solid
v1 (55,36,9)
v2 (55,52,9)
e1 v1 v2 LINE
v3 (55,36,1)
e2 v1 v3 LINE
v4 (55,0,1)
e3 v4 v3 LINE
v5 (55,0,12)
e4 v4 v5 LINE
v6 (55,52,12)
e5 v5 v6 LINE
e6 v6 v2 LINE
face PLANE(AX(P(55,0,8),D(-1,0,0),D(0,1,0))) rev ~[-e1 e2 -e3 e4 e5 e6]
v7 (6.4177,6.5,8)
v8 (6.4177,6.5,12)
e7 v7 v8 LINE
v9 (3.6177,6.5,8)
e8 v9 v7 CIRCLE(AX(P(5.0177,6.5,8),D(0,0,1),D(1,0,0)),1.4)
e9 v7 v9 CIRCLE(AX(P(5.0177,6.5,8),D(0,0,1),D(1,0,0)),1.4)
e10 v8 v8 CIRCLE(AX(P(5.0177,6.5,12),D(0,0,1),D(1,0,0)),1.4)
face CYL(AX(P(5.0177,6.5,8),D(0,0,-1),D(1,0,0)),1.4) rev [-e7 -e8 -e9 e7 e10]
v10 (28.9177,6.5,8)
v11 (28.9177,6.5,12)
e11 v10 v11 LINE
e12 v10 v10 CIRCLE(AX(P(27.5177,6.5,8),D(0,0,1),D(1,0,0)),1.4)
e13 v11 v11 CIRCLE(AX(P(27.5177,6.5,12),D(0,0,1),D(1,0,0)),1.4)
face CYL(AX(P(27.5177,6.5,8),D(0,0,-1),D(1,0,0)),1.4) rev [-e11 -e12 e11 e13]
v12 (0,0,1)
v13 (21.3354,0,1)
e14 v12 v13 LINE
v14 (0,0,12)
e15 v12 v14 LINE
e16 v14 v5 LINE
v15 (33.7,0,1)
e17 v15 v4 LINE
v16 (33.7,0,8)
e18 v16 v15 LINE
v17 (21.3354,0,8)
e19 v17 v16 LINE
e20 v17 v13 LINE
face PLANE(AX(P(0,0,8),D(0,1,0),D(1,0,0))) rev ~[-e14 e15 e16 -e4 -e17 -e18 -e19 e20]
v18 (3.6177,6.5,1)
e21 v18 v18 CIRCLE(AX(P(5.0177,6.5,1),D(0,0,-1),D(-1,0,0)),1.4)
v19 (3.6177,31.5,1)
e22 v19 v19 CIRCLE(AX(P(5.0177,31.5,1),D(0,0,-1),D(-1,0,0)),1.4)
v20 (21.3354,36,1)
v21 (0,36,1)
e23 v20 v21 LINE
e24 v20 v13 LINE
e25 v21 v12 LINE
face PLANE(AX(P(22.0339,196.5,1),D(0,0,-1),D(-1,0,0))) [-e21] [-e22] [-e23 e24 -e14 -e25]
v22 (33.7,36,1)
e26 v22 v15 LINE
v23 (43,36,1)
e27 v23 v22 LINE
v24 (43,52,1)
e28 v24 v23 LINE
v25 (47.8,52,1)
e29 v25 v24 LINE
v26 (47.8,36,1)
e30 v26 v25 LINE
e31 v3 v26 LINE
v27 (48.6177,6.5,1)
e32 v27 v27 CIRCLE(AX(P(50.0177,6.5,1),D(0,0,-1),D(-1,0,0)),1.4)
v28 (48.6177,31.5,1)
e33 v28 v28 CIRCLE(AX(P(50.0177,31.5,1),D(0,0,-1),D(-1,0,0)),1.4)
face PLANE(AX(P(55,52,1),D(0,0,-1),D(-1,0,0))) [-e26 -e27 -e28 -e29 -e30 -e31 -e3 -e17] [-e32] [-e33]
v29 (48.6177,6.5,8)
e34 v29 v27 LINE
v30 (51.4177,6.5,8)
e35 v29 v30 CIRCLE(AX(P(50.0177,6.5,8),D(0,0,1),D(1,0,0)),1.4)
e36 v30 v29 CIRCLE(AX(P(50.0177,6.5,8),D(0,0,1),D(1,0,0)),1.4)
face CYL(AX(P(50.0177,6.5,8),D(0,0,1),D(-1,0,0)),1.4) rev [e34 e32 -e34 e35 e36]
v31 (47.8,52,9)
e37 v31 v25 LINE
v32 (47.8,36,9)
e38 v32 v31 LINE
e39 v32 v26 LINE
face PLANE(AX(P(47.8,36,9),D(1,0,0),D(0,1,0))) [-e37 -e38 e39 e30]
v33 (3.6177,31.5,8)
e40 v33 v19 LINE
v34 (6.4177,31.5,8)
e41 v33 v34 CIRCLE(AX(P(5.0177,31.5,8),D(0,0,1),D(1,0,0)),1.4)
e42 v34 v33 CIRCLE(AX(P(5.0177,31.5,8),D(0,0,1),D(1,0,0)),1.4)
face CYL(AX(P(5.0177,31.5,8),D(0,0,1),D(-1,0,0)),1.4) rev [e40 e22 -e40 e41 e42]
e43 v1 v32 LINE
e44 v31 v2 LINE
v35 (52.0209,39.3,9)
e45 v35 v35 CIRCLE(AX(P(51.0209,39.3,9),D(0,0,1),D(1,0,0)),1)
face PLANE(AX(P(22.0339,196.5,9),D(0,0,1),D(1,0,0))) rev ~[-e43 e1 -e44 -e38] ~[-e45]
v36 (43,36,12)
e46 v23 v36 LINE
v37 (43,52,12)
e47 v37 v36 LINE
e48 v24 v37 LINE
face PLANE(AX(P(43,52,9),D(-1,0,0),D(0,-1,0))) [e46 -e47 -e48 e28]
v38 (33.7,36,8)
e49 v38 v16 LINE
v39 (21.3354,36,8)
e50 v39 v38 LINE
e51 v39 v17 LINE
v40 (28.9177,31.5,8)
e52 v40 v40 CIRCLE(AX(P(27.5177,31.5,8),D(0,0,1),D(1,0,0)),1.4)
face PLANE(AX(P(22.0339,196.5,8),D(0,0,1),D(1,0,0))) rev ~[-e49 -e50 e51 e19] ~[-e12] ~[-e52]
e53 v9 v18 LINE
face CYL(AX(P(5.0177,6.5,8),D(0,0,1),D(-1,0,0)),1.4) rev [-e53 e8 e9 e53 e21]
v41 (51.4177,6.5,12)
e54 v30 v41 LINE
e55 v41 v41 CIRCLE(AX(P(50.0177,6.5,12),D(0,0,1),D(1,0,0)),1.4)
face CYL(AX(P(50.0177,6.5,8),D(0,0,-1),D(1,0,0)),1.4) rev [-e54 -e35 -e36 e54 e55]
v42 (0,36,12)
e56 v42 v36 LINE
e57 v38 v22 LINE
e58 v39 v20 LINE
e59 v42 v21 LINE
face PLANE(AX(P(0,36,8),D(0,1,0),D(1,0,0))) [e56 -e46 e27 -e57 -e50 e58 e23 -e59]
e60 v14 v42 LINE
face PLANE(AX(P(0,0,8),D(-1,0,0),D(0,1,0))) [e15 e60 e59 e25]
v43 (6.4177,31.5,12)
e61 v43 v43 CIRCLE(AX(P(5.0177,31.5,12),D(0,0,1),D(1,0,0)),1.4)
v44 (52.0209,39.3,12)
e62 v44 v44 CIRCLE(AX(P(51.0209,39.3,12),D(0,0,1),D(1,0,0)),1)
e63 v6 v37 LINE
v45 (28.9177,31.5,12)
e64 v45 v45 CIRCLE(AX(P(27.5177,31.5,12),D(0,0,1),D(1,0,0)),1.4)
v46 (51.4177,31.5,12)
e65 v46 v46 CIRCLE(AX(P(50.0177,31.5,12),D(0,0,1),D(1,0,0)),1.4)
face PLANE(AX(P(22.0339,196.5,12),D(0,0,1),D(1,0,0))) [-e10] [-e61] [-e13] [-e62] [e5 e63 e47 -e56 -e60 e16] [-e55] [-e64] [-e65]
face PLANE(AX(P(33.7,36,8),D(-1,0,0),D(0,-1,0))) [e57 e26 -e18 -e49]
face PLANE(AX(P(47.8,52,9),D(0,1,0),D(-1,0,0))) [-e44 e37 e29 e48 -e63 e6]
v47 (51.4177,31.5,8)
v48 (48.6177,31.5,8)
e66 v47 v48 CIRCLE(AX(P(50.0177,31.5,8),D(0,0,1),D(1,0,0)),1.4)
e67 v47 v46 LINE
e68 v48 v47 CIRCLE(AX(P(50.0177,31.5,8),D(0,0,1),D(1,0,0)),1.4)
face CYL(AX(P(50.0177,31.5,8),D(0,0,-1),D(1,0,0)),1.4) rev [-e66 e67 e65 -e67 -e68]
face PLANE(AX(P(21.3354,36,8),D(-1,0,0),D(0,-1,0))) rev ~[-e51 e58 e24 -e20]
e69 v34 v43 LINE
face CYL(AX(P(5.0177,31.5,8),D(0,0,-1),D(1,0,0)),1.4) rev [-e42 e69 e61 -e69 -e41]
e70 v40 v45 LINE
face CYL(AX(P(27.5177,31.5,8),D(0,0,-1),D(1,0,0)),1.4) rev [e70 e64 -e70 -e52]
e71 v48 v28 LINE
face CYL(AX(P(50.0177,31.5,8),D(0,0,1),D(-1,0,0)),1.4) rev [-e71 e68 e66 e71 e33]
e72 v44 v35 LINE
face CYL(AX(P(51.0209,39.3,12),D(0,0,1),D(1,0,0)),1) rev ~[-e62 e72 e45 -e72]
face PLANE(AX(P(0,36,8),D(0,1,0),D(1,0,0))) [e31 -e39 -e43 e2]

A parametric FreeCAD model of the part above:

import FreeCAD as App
import Part
import Sketcher

V = App.Vector


def add_polygon(sketch, points):
    """Adds a closed chain of lines whose ends are joined by coincident constraints."""
    first, n = sketch.GeometryCount, len(points)
    for a, b in zip(points, points[1:] + points[:1]):
        sketch.addGeometry(Part.LineSegment(App.Vector(*a, 0), App.Vector(*b, 0)), False)
    for i in range(n):
        sketch.addConstraint(Sketcher.Constraint("Coincident", first + i, 2, first + (i + 1) % n, 1))

doc = App.newDocument("Part")
body = doc.addObject("PartDesign::Body", "Body")

sketch1 = doc.addObject("Sketcher::SketchObject", "Sketch")
body.addObject(sketch1)
sketch1.AttachmentSupport = (doc.XY_Plane, [""])
sketch1.MapMode = "FlatFace"
sketch1.AttachmentOffset = App.Placement(V(0, 0, 8), App.Rotation())
add_polygon(sketch1, [(0, 0), (55, 0), (55, 36), (0, 36)])
sketch1.addGeometry(Part.Circle(V(5, 6.5, 0), V(0, 0, 1), 1.4), False)
sketch1.addGeometry(Part.Circle(V(27.5, 6.5, 0), V(0, 0, 1), 1.4), False)
sketch1.addGeometry(Part.Circle(V(50, 6.5, 0), V(0, 0, 1), 1.4), False)
sketch1.addGeometry(Part.Circle(V(50, 31.5, 0), V(0, 0, 1), 1.4), False)
sketch1.addGeometry(Part.Circle(V(5, 31.5, 0), V(0, 0, 1), 1.4), False)
sketch1.addGeometry(Part.Circle(V(27.5, 31.5, 0), V(0, 0, 1), 1.4), False)
sketch1.addConstraint(Sketcher.Constraint("Horizontal", 0))
sketch1.addConstraint(Sketcher.Constraint("Vertical", 1))
sketch1.addConstraint(Sketcher.Constraint("Horizontal", 2))
sketch1.addConstraint(Sketcher.Constraint("Vertical", 3))
sketch1.addConstraint(Sketcher.Constraint("Coincident", 3, 2, -1, 1))
sketch1.addConstraint(Sketcher.Constraint("Equal", 4, 5))
sketch1.addConstraint(Sketcher.Constraint("Equal", 5, 6))
sketch1.addConstraint(Sketcher.Constraint("Equal", 6, 7))
sketch1.addConstraint(Sketcher.Constraint("Equal", 7, 8))
sketch1.addConstraint(Sketcher.Constraint("Equal", 8, 9))
sketch1.addConstraint(Sketcher.Constraint("Horizontal", 4, 3, 5, 3))
sketch1.addConstraint(Sketcher.Constraint("Horizontal", 5, 3, 6, 3))
sketch1.addConstraint(Sketcher.Constraint("Horizontal", 7, 3, 8, 3))
sketch1.addConstraint(Sketcher.Constraint("Horizontal", 8, 3, 9, 3))
sketch1.addConstraint(Sketcher.Constraint("Vertical", 6, 3, 7, 3))
sketch1.addConstraint(Sketcher.Constraint("Vertical", 4, 3, 8, 3))
sketch1.addConstraint(Sketcher.Constraint("Vertical", 5, 3, 9, 3))
sketch1.addConstraint(Sketcher.Constraint("Diameter", 4, 2.8))
sketch1.addConstraint(Sketcher.Constraint("DistanceX", 0, 1, 0, 2, 55.0))
sketch1.addConstraint(Sketcher.Constraint("DistanceY", 1, 1, 1, 2, 36.0))
sketch1.addConstraint(Sketcher.Constraint("DistanceX", 4, 3, 6, 3, 45.0))
sketch1.addConstraint(Sketcher.Constraint("DistanceY", 6, 3, 7, 3, 25.0))
sketch1.addConstraint(Sketcher.Constraint("DistanceY", -1, 1, 4, 3, 6.5))
sketch1.addConstraint(Sketcher.Constraint("DistanceX", 4, 3, 5, 3, 22.5))
sketch1.addConstraint(Sketcher.Constraint("DistanceX", -1, 1, 4, 3, 5.0177))
pad1 = doc.addObject("PartDesign::Pad", "Pad")
body.addObject(pad1)
pad1.Profile = sketch1
pad1.Length = 4

sketch2 = doc.addObject("Sketcher::SketchObject", "Sketch001")
body.addObject(sketch2)
sketch2.AttachmentSupport = (doc.XY_Plane, [""])
sketch2.MapMode = "FlatFace"
sketch2.AttachmentOffset = App.Placement(V(0, 0, 8), App.Rotation())
add_polygon(sketch2, [(55, 36), (55, 0), (33.7, 0), (33.7, 36)])
sketch2.addGeometry(Part.Circle(V(50, 6.5, 0), V(0, 0, 1), 1.4), False)
sketch2.addGeometry(Part.Circle(V(50, 31.5, 0), V(0, 0, 1), 1.4), False)
add_polygon(sketch2, [(21.3, 36), (21.3, 0), (0, 0), (0, 36)])
sketch2.addGeometry(Part.Circle(V(5, 6.5, 0), V(0, 0, 1), 1.4), False)
sketch2.addGeometry(Part.Circle(V(5, 31.5, 0), V(0, 0, 1), 1.4), False)
sketch2.addConstraint(Sketcher.Constraint("Vertical", 0))
sketch2.addConstraint(Sketcher.Constraint("Horizontal", 1))
sketch2.addConstraint(Sketcher.Constraint("Vertical", 2))
sketch2.addConstraint(Sketcher.Constraint("Horizontal", 3))
sketch2.addConstraint(Sketcher.Constraint("Vertical", 6))
sketch2.addConstraint(Sketcher.Constraint("Horizontal", 7))
sketch2.addConstraint(Sketcher.Constraint("Vertical", 8))
sketch2.addConstraint(Sketcher.Constraint("Horizontal", 9))
sketch2.addConstraint(Sketcher.Constraint("Coincident", 7, 2, -1, 1))
sketch2.addConstraint(Sketcher.Constraint("Equal", 4, 5))
sketch2.addConstraint(Sketcher.Constraint("Equal", 5, 10))
sketch2.addConstraint(Sketcher.Constraint("Equal", 10, 11))
sketch2.addConstraint(Sketcher.Constraint("PointOnObject", 0, 2, -1))
sketch2.addConstraint(Sketcher.Constraint("Horizontal", 4, 3, 10, 3))
sketch2.addConstraint(Sketcher.Constraint("Horizontal", 5, 3, 11, 3))
sketch2.addConstraint(Sketcher.Constraint("Horizontal", 3, 2, 8, 2))
sketch2.addConstraint(Sketcher.Constraint("Vertical", 4, 3, 5, 3))
sketch2.addConstraint(Sketcher.Constraint("Vertical", 10, 3, 11, 3))
sketch2.addConstraint(Sketcher.Constraint("Diameter", 4, 2.8))
sketch2.addConstraint(Sketcher.Constraint("DistanceY", 0, 2, 0, 1, 36.0))
sketch2.addConstraint(Sketcher.Constraint("DistanceX", 1, 2, 1, 1, 21.3))
sketch2.addConstraint(Sketcher.Constraint("DistanceX", -1, 1, 0, 2, 55.0))
sketch2.addConstraint(Sketcher.Constraint("DistanceY", 4, 3, 5, 3, 25.0))
sketch2.addConstraint(Sketcher.Constraint("DistanceX", 10, 3, 4, 3, 45.0))
sketch2.addConstraint(Sketcher.Constraint("DistanceY", -1, 1, 4, 3, 6.5))
sketch2.addConstraint(Sketcher.Constraint("DistanceX", 7, 2, 7, 1, 21.3354))
sketch2.addConstraint(Sketcher.Constraint("DistanceX", -1, 1, 4, 3, 50.0177))
pad2 = doc.addObject("PartDesign::Pad", "Pad001")
body.addObject(pad2)
pad2.Profile = sketch2
pad2.Length = 7
pad2.Reversed = True

sketch3 = doc.addObject("Sketcher::SketchObject", "Sketch002")
body.addObject(sketch3)
sketch3.AttachmentSupport = (doc.XY_Plane, [""])
sketch3.MapMode = "FlatFace"
sketch3.AttachmentOffset = App.Placement(V(0, 0, 12), App.Rotation())
add_polygon(sketch3, [(43, 36), (55, 36), (55, 52), (43, 52)])
sketch3.addGeometry(Part.Circle(V(51, 39.3, 0), V(0, 0, 1), 1), False)
sketch3.addConstraint(Sketcher.Constraint("Horizontal", 0))
sketch3.addConstraint(Sketcher.Constraint("Vertical", 1))
sketch3.addConstraint(Sketcher.Constraint("Horizontal", 2))
sketch3.addConstraint(Sketcher.Constraint("Vertical", 3))
sketch3.addConstraint(Sketcher.Constraint("DistanceX", 0, 1, 0, 2, 12.0))
sketch3.addConstraint(Sketcher.Constraint("Diameter", 4, 2.0))
sketch3.addConstraint(Sketcher.Constraint("DistanceY", 1, 1, 1, 2, 16.0))
sketch3.addConstraint(Sketcher.Constraint("DistanceX", -1, 1, 0, 2, 55.0))
sketch3.addConstraint(Sketcher.Constraint("DistanceY", -1, 1, 0, 2, 36.0))
sketch3.addConstraint(Sketcher.Constraint("DistanceY", -1, 1, 4, 3, 39.3))
sketch3.addConstraint(Sketcher.Constraint("DistanceX", -1, 1, 4, 3, 51.021))
pad3 = doc.addObject("PartDesign::Pad", "Pad002")
body.addObject(pad3)
pad3.Profile = sketch3
pad3.Length = 3
pad3.Reversed = True

sketch4 = doc.addObject("Sketcher::SketchObject", "Sketch003")
body.addObject(sketch4)
sketch4.AttachmentSupport = (doc.XY_Plane, [""])
sketch4.MapMode = "FlatFace"
sketch4.AttachmentOffset = App.Placement(V(0, 0, 9), App.Rotation())
add_polygon(sketch4, [(47.8, 52), (47.8, 36), (43, 36), (43, 52)])
sketch4.addConstraint(Sketcher.Constraint("Vertical", 0))
sketch4.addConstraint(Sketcher.Constraint("Horizontal", 1))
sketch4.addConstraint(Sketcher.Constraint("Vertical", 2))
sketch4.addConstraint(Sketcher.Constraint("Horizontal", 3))
sketch4.addConstraint(Sketcher.Constraint("DistanceX", 1, 2, 1, 1, 4.8))
sketch4.addConstraint(Sketcher.Constraint("DistanceY", 0, 2, 0, 1, 16.0))
sketch4.addConstraint(Sketcher.Constraint("DistanceY", -1, 1, 0, 2, 36.0))
sketch4.addConstraint(Sketcher.Constraint("DistanceX", -1, 1, 1, 2, 43.0))
pad4 = doc.addObject("PartDesign::Pad", "Pad003")
body.addObject(pad4)
pad4.Profile = sketch4
pad4.Length = 8
pad4.Reversed = True

doc.recompute()
